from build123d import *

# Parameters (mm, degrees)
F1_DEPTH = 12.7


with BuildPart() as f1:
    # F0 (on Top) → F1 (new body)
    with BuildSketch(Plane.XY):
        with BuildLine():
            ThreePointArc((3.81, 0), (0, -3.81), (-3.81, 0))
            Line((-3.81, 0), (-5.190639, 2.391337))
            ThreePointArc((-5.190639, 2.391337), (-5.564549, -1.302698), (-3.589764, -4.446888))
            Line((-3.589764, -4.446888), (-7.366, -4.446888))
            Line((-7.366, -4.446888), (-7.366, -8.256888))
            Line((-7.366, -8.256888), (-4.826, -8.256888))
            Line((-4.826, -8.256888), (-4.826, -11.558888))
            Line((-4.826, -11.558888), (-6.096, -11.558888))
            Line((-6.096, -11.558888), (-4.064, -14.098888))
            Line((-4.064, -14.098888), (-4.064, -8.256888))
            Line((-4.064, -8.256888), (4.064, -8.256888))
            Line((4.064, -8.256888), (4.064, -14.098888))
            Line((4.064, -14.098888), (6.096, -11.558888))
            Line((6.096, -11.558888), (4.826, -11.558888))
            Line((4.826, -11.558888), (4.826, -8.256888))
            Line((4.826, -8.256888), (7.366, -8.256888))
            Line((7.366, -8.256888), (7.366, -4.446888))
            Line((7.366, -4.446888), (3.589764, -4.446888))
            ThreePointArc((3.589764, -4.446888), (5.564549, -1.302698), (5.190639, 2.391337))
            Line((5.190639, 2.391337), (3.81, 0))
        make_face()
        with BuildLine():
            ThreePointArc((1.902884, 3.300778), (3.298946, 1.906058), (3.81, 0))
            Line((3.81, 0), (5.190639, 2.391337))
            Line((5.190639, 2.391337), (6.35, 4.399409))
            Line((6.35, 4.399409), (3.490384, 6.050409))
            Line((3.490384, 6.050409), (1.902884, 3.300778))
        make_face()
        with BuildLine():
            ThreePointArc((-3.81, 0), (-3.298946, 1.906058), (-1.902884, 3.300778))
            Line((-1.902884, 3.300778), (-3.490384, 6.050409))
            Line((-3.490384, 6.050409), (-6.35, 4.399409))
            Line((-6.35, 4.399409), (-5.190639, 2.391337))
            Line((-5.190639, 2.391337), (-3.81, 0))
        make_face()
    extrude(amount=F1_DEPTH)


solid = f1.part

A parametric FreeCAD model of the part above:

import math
import FreeCAD as App
import Part
import Sketcher

V = App.Vector
Q = App.Units.Quantity

doc = App.newDocument("Part")
body = doc.addObject("PartDesign::Body", "Body")

# Sketch on XY plane
sketch1 = body.newObject("Sketcher::SketchObject", "Sketch")
sketch1.AttachmentSupport = (doc.getObject("XY_Plane"), [""])
sketch1.MapMode = "FlatFace"
sketch1.addGeometry(Part.ArcOfCircle(Part.Circle(V(0, 0, 0), V(0, 0, 1), 3.8), math.radians(180), math.radians(360)), False)
sketch1.addGeometry(Part.ArcOfCircle(Part.Circle(V(0, 0, 0), V(0, 0, 1), 3.8), math.radians(120), math.radians(180)), False)
sketch1.addGeometry(Part.LineSegment(V(-1.9, 3.3, 0), V(-3.5, 6.1, 0)), False)
sketch1.addGeometry(Part.LineSegment(V(-3.5, 6.1, 0), V(-6.3, 4.4, 0)), False)
sketch1.addGeometry(Part.LineSegment(V(-6.3, 4.4, 0), V(-5.2, 2.4, 0)), False)
sketch1.addGeometry(Part.ArcOfCircle(Part.Circle(V(0, 0, 0), V(0, 0, 1), 5.7), math.radians(155), math.radians(231)), False)
sketch1.addGeometry(Part.LineSegment(V(-3.6, -4.4, 0), V(-7.4, -4.4, 0)), False)
sketch1.addGeometry(Part.LineSegment(V(-7.4, -4.4, 0), V(-7.4, -8.3, 0)), False)
sketch1.addGeometry(Part.LineSegment(V(-7.4, -8.3, 0), V(-4.8, -8.3, 0)), False)
sketch1.addGeometry(Part.LineSegment(V(-4.8, -8.3, 0), V(-4.8, -11.6, 0)), False)
sketch1.addGeometry(Part.LineSegment(V(-4.8, -11.6, 0), V(-6.1, -11.6, 0)), False)
sketch1.addGeometry(Part.LineSegment(V(-6.1, -11.6, 0), V(-4.1, -14.1, 0)), False)
sketch1.addGeometry(Part.LineSegment(V(-4.1, -14.1, 0), V(-4.1, -8.3, 0)), False)
sketch1.addGeometry(Part.LineSegment(V(-4.1, -8.3, 0), V(4.1, -8.3, 0)), False)
sketch1.addGeometry(Part.LineSegment(V(4.1, -8.3, 0), V(4.1, -14.1, 0)), False)
sketch1.addGeometry(Part.LineSegment(V(4.1, -14.1, 0), V(6.1, -11.6, 0)), False)
sketch1.addGeometry(Part.LineSegment(V(6.1, -11.6, 0), V(4.8, -11.6, 0)), False)
sketch1.addGeometry(Part.LineSegment(V(4.8, -11.6, 0), V(4.8, -8.3, 0)), False)
sketch1.addGeometry(Part.LineSegment(V(4.8, -8.3, 0), V(7.4, -8.3, 0)), False)
sketch1.addGeometry(Part.LineSegment(V(7.4, -8.3, 0), V(7.4, -4.4, 0)), False)
sketch1.addGeometry(Part.LineSegment(V(7.4, -4.4, 0), V(3.6, -4.4, 0)), False)
sketch1.addGeometry(Part.ArcOfCircle(Part.Circle(V(0, 0, 0), V(0, 0, 1), 5.7), math.radians(-51), math.radians(25)), False)
sketch1.addGeometry(Part.LineSegment(V(5.2, 2.4, 0), V(6.3, 4.4, 0)), False)
sketch1.addGeometry(Part.LineSegment(V(6.3, 4.4, 0), V(3.5, 6.1, 0)), False)
sketch1.addGeometry(Part.LineSegment(V(3.5, 6.1, 0), V(1.9, 3.3, 0)), False)
sketch1.addGeometry(Part.ArcOfCircle(Part.Circle(V(0, 0, 0), V(0, 0, 1), 3.8), math.radians(0), math.radians(60)), False)
sketch1.addConstraint(Sketcher.Constraint("Tangent", 0, 1, 1, 2))
sketch1.addConstraint(Sketcher.Constraint("Coincident", 1, 1, 2, 1))
sketch1.addConstraint(Sketcher.Constraint("Coincident", 2, 2, 3, 1))
sketch1.addConstraint(Sketcher.Constraint("Coincident", 3, 2, 4, 1))
sketch1.addConstraint(Sketcher.Constraint("Coincident", 4, 2, 5, 1))
sketch1.addConstraint(Sketcher.Constraint("Coincident", 5, 2, 6, 1))
sketch1.addConstraint(Sketcher.Constraint("Coincident", 6, 2, 7, 1))
sketch1.addConstraint(Sketcher.Constraint("Coincident", 7, 2, 8, 1))
sketch1.addConstraint(Sketcher.Constraint("Coincident", 8, 2, 9, 1))
sketch1.addConstraint(Sketcher.Constraint("Coincident", 9, 2, 10, 1))
sketch1.addConstraint(Sketcher.Constraint("Coincident", 10, 2, 11, 1))
sketch1.addConstraint(Sketcher.Constraint("Coincident", 11, 2, 12, 1))
sketch1.addConstraint(Sketcher.Constraint("Coincident", 12, 2, 13, 1))
sketch1.addConstraint(Sketcher.Constraint("Coincident", 13, 2, 14, 1))
sketch1.addConstraint(Sketcher.Constraint("Coincident", 14, 2, 15, 1))
sketch1.addConstraint(Sketcher.Constraint("Coincident", 15, 2, 16, 1))
sketch1.addConstraint(Sketcher.Constraint("Coincident", 16, 2, 17, 1))
sketch1.addConstraint(Sketcher.Constraint("Coincident", 17, 2, 18, 1))
sketch1.addConstraint(Sketcher.Constraint("Coincident", 18, 2, 19, 1))
sketch1.addConstraint(Sketcher.Constraint("Coincident", 19, 2, 20, 1))
sketch1.addConstraint(Sketcher.Constraint("Coincident", 20, 2, 21, 1))
sketch1.addConstraint(Sketcher.Constraint("Coincident", 21, 2, 22, 1))
sketch1.addConstraint(Sketcher.Constraint("Coincident", 22, 2, 23, 1))
sketch1.addConstraint(Sketcher.Constraint("Coincident", 23, 2, 24, 1))
sketch1.addConstraint(Sketcher.Constraint("Coincident", 24, 2, 25, 2))
sketch1.addConstraint(Sketcher.Constraint("Tangent", 25, 1, 0, 2))
sketch1.addConstraint(Sketcher.Constraint("Horizontal", 6))
sketch1.addConstraint(Sketcher.Constraint("Vertical", 7))
sketch1.addConstraint(Sketcher.Constraint("Horizontal", 8))
sketch1.addConstraint(Sketcher.Constraint("Vertical", 9))
sketch1.addConstraint(Sketcher.Constraint("Horizontal", 10))
sketch1.addConstraint(Sketcher.Constraint("Vertical", 12))
sketch1.addConstraint(Sketcher.Constraint("Horizontal", 13))
sketch1.addConstraint(Sketcher.Constraint("Vertical", 14))
sketch1.addConstraint(Sketcher.Constraint("Horizontal", 16))
sketch1.addConstraint(Sketcher.Constraint("Vertical", 17))
sketch1.addConstraint(Sketcher.Constraint("Horizontal", 18))
sketch1.addConstraint(Sketcher.Constraint("Vertical", 19))
sketch1.addConstraint(Sketcher.Constraint("Horizontal", 20))
sketch1.addConstraint(Sketcher.Constraint("Coincident", 0, 3, -1, 1))
sketch1.addConstraint(Sketcher.Constraint("Coincident", 5, 3, -1, 1))
sketch1.addConstraint(Sketcher.Constraint("Coincident", 21, 3, -1, 1))
sketch1.addConstraint(Sketcher.Constraint("Equal", 0, 1))
sketch1.addConstraint(Sketcher.Constraint("Equal", 5, 21))
sketch1.addConstraint(Sketcher.Constraint("Equal", 1, 25))
sketch1.addConstraint(Sketcher.Constraint("Symmetric", 11, 2, 14, 2, -2))
sketch1.addConstraint(Sketcher.Constraint("Symmetric", 10, 2, 15, 2, -2))
sketch1.addConstraint(Sketcher.Constraint("Symmetric", 8, 2, 17, 2, -2))
sketch1.addConstraint(Sketcher.Constraint("Symmetric", 6, 2, 19, 2, -2))
sketch1.addConstraint(Sketcher.Constraint("Symmetric", 3, 2, 22, 2, -2))
sketch1.addConstraint(Sketcher.Constraint("Symmetric", 2, 2, 23, 2, -2))
sketch1.addConstraint(Sketcher.Constraint("PointOnObject", 0, 1, -1))
sketch1.addConstraint(Sketcher.Constraint("PointOnObject", 25, 1, -1))
sketch1.addConstraint(Sketcher.Constraint("Perpendicular", 2, 3))
sketch1.addConstraint(Sketcher.Constraint("Perpendicular", 3, 4))
sketch1.addConstraint(Sketcher.Constraint("Perpendicular", 22, 23))
sketch1.addConstraint(Sketcher.Constraint("Perpendicular", 23, 24))
sketch1.addConstraint(Sketcher.Constraint("Horizontal", 8, 2, 12, 2))
sketch1.addConstraint(Sketcher.Constraint("Radius", 0, Q("0.15 in")))
sketch1.addConstraint(Sketcher.Constraint("DistanceX", 8, 1, 8, 2, Q("0.1 in")))
sketch1.addConstraint(Sketcher.Constraint("Angle", 2, Q("119.999997 deg")))
sketch1.addConstraint(Sketcher.Constraint("Radius", 5, Q("0.2249999 in")))
sketch1.addConstraint(Sketcher.Constraint("DistanceX", 10, 2, 10, 1, Q("0.05 in")))
sketch1.addConstraint(Sketcher.Constraint("DistanceX", 13, 1, 13, 2, Q("0.32 in")))
sketch1.addConstraint(Sketcher.Constraint("DistanceY", 7, 2, 7, 1, Q("0.15 in")))
sketch1.addConstraint(Sketcher.Constraint("DistanceY", 9, 2, 9, 1, Q("0.13 in")))
sketch1.addConstraint(Sketcher.Constraint("DistanceY", 12, 1, 12, 2, Q("0.23 in")))
sketch1.addConstraint(Sketcher.Constraint("DistanceX", 3, 2, 0, 1, Q("0.1 in")))
sketch1.addConstraint(Sketcher.Constraint("DistanceX", 10, 2, 14, 2, Q("0.4 in")))
sketch1.addConstraint(Sketcher.Constraint("Distance", 3, Q("0.13 in")))
sketch1.addConstraint(Sketcher.Constraint("Distance", 2, Q("0.125 in")))
sketch1.addConstraint(Sketcher.Constraint("DistanceX", 6, 2, 6, 1, Q("3.776236 mm")))
pad1 = body.newObject("PartDesign::Pad", "Pad")
pad1.Profile = sketch1
pad1.Length = Q("0.5 in")

doc.recompute()
